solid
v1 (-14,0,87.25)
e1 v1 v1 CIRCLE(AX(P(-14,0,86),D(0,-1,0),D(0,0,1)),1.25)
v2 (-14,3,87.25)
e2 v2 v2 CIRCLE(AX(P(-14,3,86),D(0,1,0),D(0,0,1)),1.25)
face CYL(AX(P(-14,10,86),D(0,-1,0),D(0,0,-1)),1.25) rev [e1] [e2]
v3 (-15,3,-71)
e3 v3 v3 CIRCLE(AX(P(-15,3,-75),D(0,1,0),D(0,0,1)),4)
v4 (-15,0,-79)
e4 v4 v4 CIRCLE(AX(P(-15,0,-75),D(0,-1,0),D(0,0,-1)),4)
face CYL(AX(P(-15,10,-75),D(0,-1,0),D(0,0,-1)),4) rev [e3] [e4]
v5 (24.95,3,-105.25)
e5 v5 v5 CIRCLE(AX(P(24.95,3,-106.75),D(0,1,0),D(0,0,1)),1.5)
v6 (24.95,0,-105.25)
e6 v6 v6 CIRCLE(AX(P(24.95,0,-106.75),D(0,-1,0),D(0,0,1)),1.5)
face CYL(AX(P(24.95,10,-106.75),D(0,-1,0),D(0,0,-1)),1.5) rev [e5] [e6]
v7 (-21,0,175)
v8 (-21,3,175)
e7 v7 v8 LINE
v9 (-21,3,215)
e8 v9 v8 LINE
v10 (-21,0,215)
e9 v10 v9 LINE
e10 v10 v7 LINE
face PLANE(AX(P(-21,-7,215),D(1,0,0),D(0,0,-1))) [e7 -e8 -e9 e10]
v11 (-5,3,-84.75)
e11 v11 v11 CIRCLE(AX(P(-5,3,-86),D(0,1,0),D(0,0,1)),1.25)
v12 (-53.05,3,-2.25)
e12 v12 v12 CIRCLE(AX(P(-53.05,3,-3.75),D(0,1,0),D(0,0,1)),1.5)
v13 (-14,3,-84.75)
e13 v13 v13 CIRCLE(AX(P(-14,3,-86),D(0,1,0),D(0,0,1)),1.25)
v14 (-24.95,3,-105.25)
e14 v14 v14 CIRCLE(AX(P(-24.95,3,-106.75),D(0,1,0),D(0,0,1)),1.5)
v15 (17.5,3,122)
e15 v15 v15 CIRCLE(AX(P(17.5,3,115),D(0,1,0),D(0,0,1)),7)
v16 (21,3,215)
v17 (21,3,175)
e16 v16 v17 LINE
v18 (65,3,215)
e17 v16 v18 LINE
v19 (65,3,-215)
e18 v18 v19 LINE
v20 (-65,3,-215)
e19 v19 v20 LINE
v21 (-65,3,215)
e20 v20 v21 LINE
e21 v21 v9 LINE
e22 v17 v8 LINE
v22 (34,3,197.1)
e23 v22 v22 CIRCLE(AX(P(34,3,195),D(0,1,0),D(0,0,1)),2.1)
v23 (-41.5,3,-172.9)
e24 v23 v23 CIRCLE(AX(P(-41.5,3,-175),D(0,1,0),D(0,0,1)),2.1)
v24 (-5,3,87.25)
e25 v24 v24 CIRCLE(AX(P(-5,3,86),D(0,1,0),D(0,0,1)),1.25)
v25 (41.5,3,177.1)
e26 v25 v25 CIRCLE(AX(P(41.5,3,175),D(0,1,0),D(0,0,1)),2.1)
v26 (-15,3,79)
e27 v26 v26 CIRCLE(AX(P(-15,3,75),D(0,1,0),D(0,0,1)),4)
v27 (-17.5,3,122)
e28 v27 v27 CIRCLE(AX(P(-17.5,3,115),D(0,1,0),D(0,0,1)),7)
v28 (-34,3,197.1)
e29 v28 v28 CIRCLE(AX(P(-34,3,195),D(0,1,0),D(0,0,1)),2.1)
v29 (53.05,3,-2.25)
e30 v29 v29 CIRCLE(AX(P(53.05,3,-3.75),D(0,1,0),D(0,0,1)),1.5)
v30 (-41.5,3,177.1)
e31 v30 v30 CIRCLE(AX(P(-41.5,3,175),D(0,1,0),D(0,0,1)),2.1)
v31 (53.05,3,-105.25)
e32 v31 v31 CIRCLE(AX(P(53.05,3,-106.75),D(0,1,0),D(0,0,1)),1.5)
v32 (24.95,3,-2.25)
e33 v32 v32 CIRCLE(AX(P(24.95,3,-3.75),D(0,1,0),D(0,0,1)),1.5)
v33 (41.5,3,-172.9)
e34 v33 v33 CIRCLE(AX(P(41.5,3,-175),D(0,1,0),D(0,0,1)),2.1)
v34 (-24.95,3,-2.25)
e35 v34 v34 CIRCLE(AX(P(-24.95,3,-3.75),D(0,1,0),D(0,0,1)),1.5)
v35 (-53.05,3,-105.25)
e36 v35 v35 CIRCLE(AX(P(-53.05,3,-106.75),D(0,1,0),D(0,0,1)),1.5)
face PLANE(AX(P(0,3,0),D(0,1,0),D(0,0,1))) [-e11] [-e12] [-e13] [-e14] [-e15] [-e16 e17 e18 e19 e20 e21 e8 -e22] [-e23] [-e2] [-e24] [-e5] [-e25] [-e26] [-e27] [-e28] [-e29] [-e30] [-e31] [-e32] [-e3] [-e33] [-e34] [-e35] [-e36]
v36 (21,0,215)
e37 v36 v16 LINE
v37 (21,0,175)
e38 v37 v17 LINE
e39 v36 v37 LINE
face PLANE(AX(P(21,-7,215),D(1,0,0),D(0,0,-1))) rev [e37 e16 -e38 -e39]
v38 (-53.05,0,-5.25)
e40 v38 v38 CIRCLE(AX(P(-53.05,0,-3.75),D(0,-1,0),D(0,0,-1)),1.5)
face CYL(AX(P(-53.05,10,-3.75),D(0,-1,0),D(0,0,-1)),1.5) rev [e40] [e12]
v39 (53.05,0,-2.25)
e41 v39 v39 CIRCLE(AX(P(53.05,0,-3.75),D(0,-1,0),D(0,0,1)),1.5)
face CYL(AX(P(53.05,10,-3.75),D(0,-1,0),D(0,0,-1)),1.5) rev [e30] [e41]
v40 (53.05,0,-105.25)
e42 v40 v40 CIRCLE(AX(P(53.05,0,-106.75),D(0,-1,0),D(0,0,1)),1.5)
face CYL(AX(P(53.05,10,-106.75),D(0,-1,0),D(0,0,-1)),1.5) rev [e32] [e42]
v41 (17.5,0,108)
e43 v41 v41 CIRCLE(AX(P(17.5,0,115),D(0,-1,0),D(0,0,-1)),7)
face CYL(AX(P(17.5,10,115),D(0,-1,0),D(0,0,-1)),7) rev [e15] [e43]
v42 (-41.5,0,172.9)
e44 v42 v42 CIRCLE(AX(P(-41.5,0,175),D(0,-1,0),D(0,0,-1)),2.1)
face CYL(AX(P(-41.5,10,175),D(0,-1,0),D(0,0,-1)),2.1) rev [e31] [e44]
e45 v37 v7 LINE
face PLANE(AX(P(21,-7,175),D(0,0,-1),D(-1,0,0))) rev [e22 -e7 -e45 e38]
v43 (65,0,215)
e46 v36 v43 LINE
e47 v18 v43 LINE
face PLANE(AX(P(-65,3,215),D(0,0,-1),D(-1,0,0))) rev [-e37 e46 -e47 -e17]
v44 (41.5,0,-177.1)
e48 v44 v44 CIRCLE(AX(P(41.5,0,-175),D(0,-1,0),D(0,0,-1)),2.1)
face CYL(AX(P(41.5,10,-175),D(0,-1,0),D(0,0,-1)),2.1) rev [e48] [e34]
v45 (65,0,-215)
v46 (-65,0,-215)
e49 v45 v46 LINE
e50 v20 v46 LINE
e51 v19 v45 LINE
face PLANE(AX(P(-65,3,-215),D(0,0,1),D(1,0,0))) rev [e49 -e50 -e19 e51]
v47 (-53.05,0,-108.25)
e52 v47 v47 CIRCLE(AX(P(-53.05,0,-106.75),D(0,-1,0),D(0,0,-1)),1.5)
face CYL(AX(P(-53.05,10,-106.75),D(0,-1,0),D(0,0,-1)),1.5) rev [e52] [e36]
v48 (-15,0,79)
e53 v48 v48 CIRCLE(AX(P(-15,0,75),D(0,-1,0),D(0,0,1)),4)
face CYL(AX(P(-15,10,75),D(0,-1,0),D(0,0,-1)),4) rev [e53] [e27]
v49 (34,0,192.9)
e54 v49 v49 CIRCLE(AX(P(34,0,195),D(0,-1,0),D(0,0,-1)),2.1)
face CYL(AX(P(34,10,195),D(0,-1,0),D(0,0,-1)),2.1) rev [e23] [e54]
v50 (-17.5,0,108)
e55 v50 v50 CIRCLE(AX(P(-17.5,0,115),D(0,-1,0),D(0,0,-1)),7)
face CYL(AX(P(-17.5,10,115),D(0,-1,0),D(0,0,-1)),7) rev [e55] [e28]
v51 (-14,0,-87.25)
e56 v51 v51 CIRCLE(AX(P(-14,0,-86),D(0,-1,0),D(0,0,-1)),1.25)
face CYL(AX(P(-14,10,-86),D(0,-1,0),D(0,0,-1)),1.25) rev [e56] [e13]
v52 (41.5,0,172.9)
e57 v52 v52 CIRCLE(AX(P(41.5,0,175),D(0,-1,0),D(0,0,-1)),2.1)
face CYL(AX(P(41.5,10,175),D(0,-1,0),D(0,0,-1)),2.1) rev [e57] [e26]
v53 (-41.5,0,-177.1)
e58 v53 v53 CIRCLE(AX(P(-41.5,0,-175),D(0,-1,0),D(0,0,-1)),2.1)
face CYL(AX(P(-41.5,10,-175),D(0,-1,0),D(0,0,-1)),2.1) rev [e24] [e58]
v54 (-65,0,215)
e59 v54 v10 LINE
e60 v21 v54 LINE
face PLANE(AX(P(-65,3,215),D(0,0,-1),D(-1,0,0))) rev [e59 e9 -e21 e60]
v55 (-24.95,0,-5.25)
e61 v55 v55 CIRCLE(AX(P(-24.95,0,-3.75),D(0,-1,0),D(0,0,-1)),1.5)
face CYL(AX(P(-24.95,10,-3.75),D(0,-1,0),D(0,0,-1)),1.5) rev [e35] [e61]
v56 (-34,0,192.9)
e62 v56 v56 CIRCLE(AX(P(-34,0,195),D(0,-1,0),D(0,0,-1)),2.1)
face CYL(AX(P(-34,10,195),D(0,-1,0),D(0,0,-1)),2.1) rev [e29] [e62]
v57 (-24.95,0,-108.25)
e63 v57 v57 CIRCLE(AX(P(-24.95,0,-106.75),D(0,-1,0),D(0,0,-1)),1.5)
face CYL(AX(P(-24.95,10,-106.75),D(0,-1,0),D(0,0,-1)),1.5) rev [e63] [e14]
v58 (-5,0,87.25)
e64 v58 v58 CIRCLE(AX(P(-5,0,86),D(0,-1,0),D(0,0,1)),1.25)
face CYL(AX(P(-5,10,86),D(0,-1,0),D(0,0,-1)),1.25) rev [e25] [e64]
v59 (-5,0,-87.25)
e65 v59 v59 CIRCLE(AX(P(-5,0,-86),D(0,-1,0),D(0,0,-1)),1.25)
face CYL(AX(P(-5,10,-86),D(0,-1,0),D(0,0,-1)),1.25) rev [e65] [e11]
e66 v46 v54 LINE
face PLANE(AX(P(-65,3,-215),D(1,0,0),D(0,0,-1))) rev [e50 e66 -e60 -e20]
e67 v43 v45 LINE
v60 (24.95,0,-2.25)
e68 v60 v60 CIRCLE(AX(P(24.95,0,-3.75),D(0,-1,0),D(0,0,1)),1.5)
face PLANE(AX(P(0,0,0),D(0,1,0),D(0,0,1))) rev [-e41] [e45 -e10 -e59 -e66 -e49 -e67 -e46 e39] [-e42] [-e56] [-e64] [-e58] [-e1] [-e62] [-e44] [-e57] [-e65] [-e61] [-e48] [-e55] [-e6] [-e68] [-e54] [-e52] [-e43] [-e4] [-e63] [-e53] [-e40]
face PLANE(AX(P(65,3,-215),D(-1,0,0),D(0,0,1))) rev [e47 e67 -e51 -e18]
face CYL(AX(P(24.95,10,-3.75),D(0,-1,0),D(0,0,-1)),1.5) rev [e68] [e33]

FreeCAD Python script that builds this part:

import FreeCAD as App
import Part
import Sketcher
from FreeCAD import Vector

doc = App.newDocument("Part")
body = doc.addObject("PartDesign::Body", "Body")

sketch1 = body.newObject("Sketcher::SketchObject", "Sketch")
sketch1.AttachmentSupport = (doc.getObject("XZ_Plane"), [""])
sketch1.MapMode = "FlatFace"
sketch1.addGeometry(Part.LineSegment(Vector(-65, -215, 0), Vector(-65, 215, 0)), False)
sketch1.addGeometry(Part.LineSegment(Vector(-65, 215, 0), Vector(65, 215, 0)), False)
sketch1.addGeometry(Part.LineSegment(Vector(65, 215, 0), Vector(65, -215, 0)), False)
sketch1.addGeometry(Part.LineSegment(Vector(65, -215, 0), Vector(-65, -215, 0)), False)
sketch1.addConstraint(Sketcher.Constraint("Coincident", 0, 2, 1, 1))
sketch1.addConstraint(Sketcher.Constraint("Coincident", 1, 2, 2, 1))
sketch1.addConstraint(Sketcher.Constraint("Coincident", 2, 2, 3, 1))
sketch1.addConstraint(Sketcher.Constraint("Coincident", 3, 2, 0, 1))
sketch1.addConstraint(Sketcher.Constraint("Vertical", 0))
sketch1.addConstraint(Sketcher.Constraint("Horizontal", 1))
sketch1.addConstraint(Sketcher.Constraint("Vertical", 2))
sketch1.addConstraint(Sketcher.Constraint("Horizontal", 3))
sketch1.addConstraint(Sketcher.Constraint("Symmetric", 0, 2, 2, 2, -1, 1))
sketch1.addConstraint(Sketcher.Constraint("DistanceX", 1, 1, 1, 2, 130.0))
sketch1.addConstraint(Sketcher.Constraint("DistanceY", 0, 1, 0, 2, 430.0))
pad1 = body.newObject("PartDesign::Pad", "Pad")
pad1.Profile = sketch1
pad1.Length = 3
pad1.Reversed = True

sketch2 = body.newObject("Sketcher::SketchObject", "Sketch001")
sketch2.AttachmentSupport = (doc.getObject("XZ_Plane"), [""])
sketch2.MapMode = "FlatFace"
sketch2.AttachmentOffset = App.Placement(Vector(0, 0, -3), App.Rotation())
sketch2.addGeometry(Part.LineSegment(Vector(-21, 175, 0), Vector(-21, 215, 0)), False)
sketch2.addGeometry(Part.LineSegment(Vector(-21, 215, 0), Vector(21, 215, 0)), False)
sketch2.addGeometry(Part.LineSegment(Vector(21, 215, 0), Vector(21, 175, 0)), False)
sketch2.addGeometry(Part.LineSegment(Vector(21, 175, 0), Vector(-21, 175, 0)), False)
sketch2.addConstraint(Sketcher.Constraint("Coincident", 0, 2, 1, 1))
sketch2.addConstraint(Sketcher.Constraint("Coincident", 1, 2, 2, 1))
sketch2.addConstraint(Sketcher.Constraint("Coincident", 2, 2, 3, 1))
sketch2.addConstraint(Sketcher.Constraint("Coincident", 3, 2, 0, 1))
sketch2.addConstraint(Sketcher.Constraint("Vertical", 0))
sketch2.addConstraint(Sketcher.Constraint("Horizontal", 1))
sketch2.addConstraint(Sketcher.Constraint("Vertical", 2))
sketch2.addConstraint(Sketcher.Constraint("Horizontal", 3))
sketch2.addConstraint(Sketcher.Constraint("DistanceX", 1, 1, 1, 2, 42.0))
sketch2.addConstraint(Sketcher.Constraint("DistanceY", 0, 1, 0, 2, 40.0))
sketch2.addConstraint(Sketcher.Constraint("DistanceX", 0, 2, -1, 1, 21.0))
sketch2.addConstraint(Sketcher.Constraint("DistanceY", -1, 1, 0, 2, 215.0))
pocket1 = body.newObject("PartDesign::Pocket", "Pocket")
pocket1.Profile = sketch2
pocket1.Length = 10
pocket1.Reversed = True

sketch3 = body.newObject("Sketcher::SketchObject", "Sketch002")
sketch3.AttachmentSupport = (doc.getObject("XZ_Plane"), [""])
sketch3.MapMode = "FlatFace"
sketch3.addGeometry(Part.Circle(Vector(-53, -3.8, 0), Vector(0, 0, 1), 1.5), False)
sketch3.addGeometry(Part.Circle(Vector(-24.9, -3.8, 0), Vector(0, 0, 1), 1.5), False)
sketch3.addGeometry(Part.Circle(Vector(-53, -106.8, 0), Vector(0, 0, 1), 1.5), False)
sketch3.addGeometry(Part.Circle(Vector(-24.9, -106.8, 0), Vector(0, 0, 1), 1.5), False)
sketch3.addGeometry(Part.Circle(Vector(24.9, -106.8, 0), Vector(0, 0, 1), 1.5), False)
sketch3.addGeometry(Part.Circle(Vector(34, 195, 0), Vector(0, 0, 1), 2.1), False)
sketch3.addGeometry(Part.Circle(Vector(53, -106.8, 0), Vector(0, 0, 1), 1.5), False)
sketch3.addGeometry(Part.Circle(Vector(24.9, -3.8, 0), Vector(0, 0, 1), 1.5), False)
sketch3.addGeometry(Part.Circle(Vector(-34, 195, 0), Vector(0, 0, 1), 2.1), False)
sketch3.addGeometry(Part.Circle(Vector(53, -3.8, 0), Vector(0, 0, 1), 1.5), False)
sketch3.addGeometry(Part.Circle(Vector(-41.5, 175, 0), Vector(0, 0, 1), 2.1), False)
sketch3.addGeometry(Part.Circle(Vector(41.5, 175, 0), Vector(0, 0, 1), 2.1), False)
sketch3.addGeometry(Part.Circle(Vector(41.5, -175, 0), Vector(0, 0, 1), 2.1), False)
sketch3.addGeometry(Part.Circle(Vector(-41.5, -175, 0), Vector(0, 0, 1), 2.1), False)
sketch3.addConstraint(Sketcher.Constraint("Equal", 0, 1))
sketch3.addConstraint(Sketcher.Constraint("Equal", 1, 2))
sketch3.addConstraint(Sketcher.Constraint("Equal", 2, 3))
sketch3.addConstraint(Sketcher.Constraint("Equal", 3, 4))
sketch3.addConstraint(Sketcher.Constraint("Equal", 4, 6))
sketch3.addConstraint(Sketcher.Constraint("Equal", 6, 7))
sketch3.addConstraint(Sketcher.Constraint("Equal", 5, 8))
sketch3.addConstraint(Sketcher.Constraint("Equal", 7, 9))
sketch3.addConstraint(Sketcher.Constraint("Equal", 8, 10))
sketch3.addConstraint(Sketcher.Constraint("Equal", 10, 11))
sketch3.addConstraint(Sketcher.Constraint("Equal", 11, 12))
sketch3.addConstraint(Sketcher.Constraint("Equal", 12, 13))
sketch3.addConstraint(Sketcher.Constraint("Symmetric", 10, 3, 12, 3, -1, 1))
sketch3.addConstraint(Sketcher.Constraint("Symmetric", 11, 3, 13, 3, -1, 1))
sketch3.addConstraint(Sketcher.Constraint("Symmetric", 3, 3, 4, 3, -2))
sketch3.addConstraint(Sketcher.Constraint("Symmetric", 2, 3, 6, 3, -2))
sketch3.addConstraint(Sketcher.Constraint("Symmetric", 1, 3, 7, 3, -2))
sketch3.addConstraint(Sketcher.Constraint("Symmetric", 5, 3, 8, 3, -2))
sketch3.addConstraint(Sketcher.Constraint("Symmetric", 0, 3, 9, 3, -2))
sketch3.addConstraint(Sketcher.Constraint("Symmetric", 10, 3, 11, 3, -2))
sketch3.addConstraint(Sketcher.Constraint("Horizontal", 0, 3, 1, 3))
sketch3.addConstraint(Sketcher.Constraint("Horizontal", 2, 3, 3, 3))
sketch3.addConstraint(Sketcher.Constraint("Vertical", 0, 3, 2, 3))
sketch3.addConstraint(Sketcher.Constraint("Vertical", 1, 3, 3, 3))
sketch3.addConstraint(Sketcher.Constraint("Diameter", 0, 3.0))
sketch3.addConstraint(Sketcher.Constraint("Diameter", 5, 4.2))
sketch3.addConstraint(Sketcher.Constraint("DistanceX", -1, 1, 5, 3, 34.0))
sketch3.addConstraint(Sketcher.Constraint("DistanceY", -1, 1, 5, 3, 195.0))
sketch3.addConstraint(Sketcher.Constraint("DistanceY", -1, 1, 10, 3, 175.0))
sketch3.addConstraint(Sketcher.Constraint("DistanceY", 2, 3, 0, 3, 103.0))
sketch3.addConstraint(Sketcher.Constraint("DistanceX", 2, 3, 4, 3, 78.0))
sketch3.addConstraint(Sketcher.Constraint("DistanceX", 10, 3, 11, 3, 83.0))
sketch3.addConstraint(Sketcher.Constraint("DistanceX", 0, 3, 1, 3, 28.1))
sketch3.addConstraint(Sketcher.Constraint("DistanceY", 0, 3, -1, 1, 3.75))
pocket2 = body.newObject("PartDesign::Pocket", "Pocket001")
pocket2.Profile = sketch3
pocket2.Length = 10

sketch4 = body.newObject("Sketcher::SketchObject", "Sketch003")
sketch4.AttachmentSupport = (doc.getObject("XZ_Plane"), [""])
sketch4.MapMode = "FlatFace"
sketch4.addGeometry(Part.Circle(Vector(-18, 115, 0), Vector(0, 0, 1), 7), False)
sketch4.addGeometry(Part.Circle(Vector(18, 115, 0), Vector(0, 0, 1), 7), False)
sketch4.addConstraint(Sketcher.Constraint("Equal", 0, 1))
sketch4.addConstraint(Sketcher.Constraint("Symmetric", 0, 3, 1, 3, -2))
sketch4.addConstraint(Sketcher.Constraint("Diameter", 0, 14.0))
sketch4.addConstraint(Sketcher.Constraint("DistanceY", -1, 1, 0, 3, 115.0))
sketch4.addConstraint(Sketcher.Constraint("DistanceX", 0, 3, 1, 3, 35.0))
pocket3 = body.newObject("PartDesign::Pocket", "Pocket002")
pocket3.Profile = sketch4
pocket3.Length = 10

sketch5 = body.newObject("Sketcher::SketchObject", "Sketch004")
sketch5.AttachmentSupport = (doc.getObject("XZ_Plane"), [""])
sketch5.MapMode = "FlatFace"
sketch5.addGeometry(Part.Circle(Vector(-15, -75, 0), Vector(0, 0, 1), 4), False)
sketch5.addGeometry(Part.Circle(Vector(-14, -86, 0), Vector(0, 0, 1), 1.2), False)
sketch5.addGeometry(Part.Circle(Vector(-5, -86, 0), Vector(0, 0, 1), 1.2), False)
sketch5.addGeometry(Part.Circle(Vector(-15, 75, 0), Vector(0, 0, 1), 4), False)
sketch5.addGeometry(Part.Circle(Vector(-14, 86, 0), Vector(0, 0, 1), 1.2), False)
sketch5.addGeometry(Part.Circle(Vector(-5, 86, 0), Vector(0, 0, 1), 1.2), False)
sketch5.addConstraint(Sketcher.Constraint("Equal", 1, 2))
sketch5.addConstraint(Sketcher.Constraint("Equal", 0, 3))
sketch5.addConstraint(Sketcher.Constraint("Equal", 2, 4))
sketch5.addConstraint(Sketcher.Constraint("Equal", 4, 5))
sketch5.addConstraint(Sketcher.Constraint("Symmetric", 0, 3, 3, 3, -1))
sketch5.addConstraint(Sketcher.Constraint("Symmetric", 1, 3, 4, 3, -1))
sketch5.addConstraint(Sketcher.Constraint("Symmetric", 2, 3, 5, 3, -1))
sketch5.addConstraint(Sketcher.Constraint("Horizontal", 1, 3, 2, 3))
sketch5.addConstraint(Sketcher.Constraint("Diameter", 0, 8.0))
sketch5.addConstraint(Sketcher.Constraint("Diameter", 1, 2.5))
sketch5.addConstraint(Sketcher.Constraint("DistanceX", 0, 3, -1, 1, 15.0))
sketch5.addConstraint(Sketcher.Constraint("DistanceY", 0, 3, -1, 1, 75.0))
sketch5.addConstraint(Sketcher.Constraint("DistanceX", 1, 3, -1, 1, 14.0))
sketch5.addConstraint(Sketcher.Constraint("DistanceY", 1, 3, -1, 1, 86.0))
sketch5.addConstraint(Sketcher.Constraint("DistanceX", 2, 3, -1, 1, 5.0))
pocket4 = body.newObject("PartDesign::Pocket", "Pocket003")
pocket4.Profile = sketch5
pocket4.Length = 10

doc.recompute()
